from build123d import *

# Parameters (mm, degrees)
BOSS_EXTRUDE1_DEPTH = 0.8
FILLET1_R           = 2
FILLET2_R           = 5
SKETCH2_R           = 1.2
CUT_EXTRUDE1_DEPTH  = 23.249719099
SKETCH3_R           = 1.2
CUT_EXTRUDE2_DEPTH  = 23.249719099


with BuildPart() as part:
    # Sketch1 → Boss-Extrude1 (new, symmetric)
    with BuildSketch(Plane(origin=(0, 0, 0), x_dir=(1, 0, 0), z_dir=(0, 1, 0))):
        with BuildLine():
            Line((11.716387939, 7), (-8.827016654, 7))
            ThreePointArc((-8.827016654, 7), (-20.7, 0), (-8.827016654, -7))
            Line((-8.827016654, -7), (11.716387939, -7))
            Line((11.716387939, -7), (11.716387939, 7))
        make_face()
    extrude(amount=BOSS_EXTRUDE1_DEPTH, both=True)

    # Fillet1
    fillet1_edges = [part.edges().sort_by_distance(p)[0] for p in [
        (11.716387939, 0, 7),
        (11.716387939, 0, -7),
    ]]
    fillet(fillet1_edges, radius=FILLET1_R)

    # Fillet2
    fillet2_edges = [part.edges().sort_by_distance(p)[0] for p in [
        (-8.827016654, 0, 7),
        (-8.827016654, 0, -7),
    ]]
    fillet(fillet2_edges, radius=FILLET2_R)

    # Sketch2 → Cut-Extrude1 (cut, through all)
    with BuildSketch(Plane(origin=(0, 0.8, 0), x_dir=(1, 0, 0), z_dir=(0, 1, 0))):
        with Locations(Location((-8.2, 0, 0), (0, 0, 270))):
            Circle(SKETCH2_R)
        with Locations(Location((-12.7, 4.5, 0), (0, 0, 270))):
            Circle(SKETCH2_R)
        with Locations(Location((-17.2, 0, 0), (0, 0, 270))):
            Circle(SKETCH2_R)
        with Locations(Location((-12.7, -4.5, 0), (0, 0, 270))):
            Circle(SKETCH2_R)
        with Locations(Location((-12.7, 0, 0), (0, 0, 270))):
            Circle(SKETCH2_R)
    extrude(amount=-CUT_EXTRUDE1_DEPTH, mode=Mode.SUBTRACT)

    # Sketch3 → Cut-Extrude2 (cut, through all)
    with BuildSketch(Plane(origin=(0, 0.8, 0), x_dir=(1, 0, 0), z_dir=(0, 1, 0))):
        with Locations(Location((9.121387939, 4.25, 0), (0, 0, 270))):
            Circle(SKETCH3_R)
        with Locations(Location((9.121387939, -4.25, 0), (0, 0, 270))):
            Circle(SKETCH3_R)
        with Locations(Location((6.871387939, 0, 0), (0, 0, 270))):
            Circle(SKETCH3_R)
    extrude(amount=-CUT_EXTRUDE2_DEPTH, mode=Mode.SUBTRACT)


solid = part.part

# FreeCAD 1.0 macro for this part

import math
import FreeCAD as App
import Part
import Sketcher

V = App.Vector
Q = App.Units.Quantity


def edges_at(feature, points):
    """Names of the edges that pass closest to the given points."""
    edges = feature.Shape.Edges
    near = lambda p: min(range(len(edges)), key=lambda i: edges[i].distToShape(Part.Vertex(*p))[0])
    return sorted({f"Edge{near(p) + 1}" for p in points})

doc = App.newDocument("Part")
params = doc.addObject("Spreadsheet::Sheet", "Params")
for row, (alias, value) in enumerate([
    ("sketch1_radius", "8 mm"),
    ("sketch1_height", "14 mm"),
    ("pad1_length", "1.6 mm"),
    ("fillet_radius", "2 mm"),
    ("fillet2_radius", "5 mm"),
    ("sketch2_diameter", "2.4 mm"),
    ("sketch3_diameter", "2.4 mm"),
], start=1):
    params.set(f"A{row}", alias)
    params.set(f"B{row}", "=" + value)
    params.setAlias(f"B{row}", alias)

body = doc.addObject("PartDesign::Body", "Body")

sketch1 = body.newObject("Sketcher::SketchObject", "Sketch")
sketch1.AttachmentSupport = (doc.getObject("XZ_Plane"), [""])
sketch1.MapMode = "FlatFace"
sketch1.addGeometry([
    Part.LineSegment(V(12, -7, 0), V(-9, -7, 0)),
    Part.ArcOfCircle(Part.Circle(V(-13, 0, 0), V(0, 0, 1), 8), math.radians(61), math.radians(299)),
    Part.LineSegment(V(-9, 7, 0), V(12, 7, 0)),
    Part.LineSegment(V(12, 7, 0), V(12, -7, 0)),
], False)
sketch1.addConstraint([
    Sketcher.Constraint("Coincident", 0, 2, 1, 2),
    Sketcher.Constraint("Coincident", 1, 1, 2, 1),
    Sketcher.Constraint("Coincident", 2, 2, 3, 1),
    Sketcher.Constraint("Coincident", 3, 2, 0, 1),
    Sketcher.Constraint("Horizontal", 0),
    Sketcher.Constraint("Horizontal", 2),
    Sketcher.Constraint("Vertical", 3),
    Sketcher.Constraint("Symmetric", 0, 2, 1, 1, -1),
    Sketcher.Constraint("Radius", 1, Q("8 mm")),
    Sketcher.Constraint("DistanceY", 3, 2, 3, 1, Q("14 mm")),
    Sketcher.Constraint("DistanceX", 1, 3, -1, 1, Q("12.7 mm")),
    Sketcher.Constraint("DistanceX", 0, 2, 0, 1, Q("20.543405 mm")),
])
sketch1.setExpression("Constraints[8]", "Params.sketch1_radius")
sketch1.setExpression("Constraints[9]", "Params.sketch1_height")
pad1 = body.newObject("PartDesign::Pad", "Pad")
pad1.Profile = sketch1
pad1.setExpression("Length", "Params.pad1_length")
pad1.Midplane = True
doc.recompute()

fillet = body.newObject("PartDesign::Fillet", "Fillet")
fillet.Base = (pad1, edges_at(pad1, [(11.716, 0, 7), (11.716, 0, -7)]))
fillet.setExpression("Radius", "Params.fillet_radius")
doc.recompute()

fillet2 = body.newObject("PartDesign::Fillet", "Fillet001")
fillet2.Base = (fillet, edges_at(fillet, [(-8.827, 0, 7), (-8.827, 0, -7)]))
fillet2.setExpression("Radius", "Params.fillet2_radius")

sketch2 = body.newObject("Sketcher::SketchObject", "Sketch001")
sketch2.AttachmentSupport = (doc.getObject("XZ_Plane"), [""])
sketch2.MapMode = "FlatFace"
sketch2.AttachmentOffset = App.Placement(V(0, 0, -0.8), App.Rotation())
sketch2.addGeometry([
    Part.Circle(V(-8.2, 0, 0), V(0, 0, 1), 1.2),
    Part.Circle(V(-12.7, -4.5, 0), V(0, 0, 1), 1.2),
    Part.Circle(V(-17.2, 0, 0), V(0, 0, 1), 1.2),
    Part.Circle(V(-12.7, 4.5, 0), V(0, 0, 1), 1.2),
    Part.Circle(V(-12.7, 0, 0), V(0, 0, 1), 1.2),
], False)
sketch2.addConstraint([
    Sketcher.Constraint("Equal", 0, 1),
    Sketcher.Constraint("Equal", 1, 2),
    Sketcher.Constraint("Equal", 2, 3),
    Sketcher.Constraint("Equal", 3, 4),
    Sketcher.Constraint("Symmetric", 1, 3, 3, 3, -1),
    Sketcher.Constraint("PointOnObject", 0, 3, -1),
    Sketcher.Constraint("PointOnObject", 2, 3, -1),
    Sketcher.Constraint("PointOnObject", 4, 3, -1),
    Sketcher.Constraint("Vertical", 3, 3, 4, 3),
    Sketcher.Constraint("Diameter", 0, Q("2.4 mm")),
    Sketcher.Constraint("DistanceX", 2, 3, 0, 3, Q("9 mm")),
    Sketcher.Constraint("DistanceY", 1, 3, 3, 3, Q("9 mm")),
    Sketcher.Constraint("DistanceX", 0, 3, -1, 1, Q("8.2 mm")),
    Sketcher.Constraint("DistanceX", 1, 3, -1, 1, Q("12.7 mm")),
])
sketch2.setExpression("Constraints[9]", "Params.sketch2_diameter")
pocket1 = body.newObject("PartDesign::Pocket", "Pocket")
pocket1.Profile = sketch2
pocket1.Type = "ThroughAll"
pocket1.Reversed = True

sketch3 = body.newObject("Sketcher::SketchObject", "Sketch002")
sketch3.AttachmentSupport = (doc.getObject("XZ_Plane"), [""])
sketch3.MapMode = "FlatFace"
sketch3.AttachmentOffset = App.Placement(V(0, 0, -0.8), App.Rotation())
sketch3.addGeometry([
    Part.Circle(V(9.1, -4.2, 0), V(0, 0, 1), 1.2),
    Part.Circle(V(9.1, 4.2, 0), V(0, 0, 1), 1.2),
    Part.Circle(V(6.9, 0, 0), V(0, 0, 1), 1.2),
], False)
sketch3.addConstraint([
    Sketcher.Constraint("Equal", 0, 1),
    Sketcher.Constraint("Equal", 1, 2),
    Sketcher.Constraint("Symmetric", 0, 3, 1, 3, -1),
    Sketcher.Constraint("PointOnObject", 2, 3, -1),
    Sketcher.Constraint("Diameter", 0, Q("2.4 mm")),
    Sketcher.Constraint("DistanceY", 0, 3, 1, 3, Q("8.5 mm")),
    Sketcher.Constraint("DistanceX", 2, 3, 0, 3, Q("2.25 mm")),
    Sketcher.Constraint("DistanceX", -1, 1, 0, 3, Q("9.121388 mm")),
])
sketch3.setExpression("Constraints[4]", "Params.sketch3_diameter")
pocket2 = body.newObject("PartDesign::Pocket", "Pocket001")
pocket2.Profile = sketch3
pocket2.Type = "ThroughAll"
pocket2.Reversed = True

doc.recompute()
